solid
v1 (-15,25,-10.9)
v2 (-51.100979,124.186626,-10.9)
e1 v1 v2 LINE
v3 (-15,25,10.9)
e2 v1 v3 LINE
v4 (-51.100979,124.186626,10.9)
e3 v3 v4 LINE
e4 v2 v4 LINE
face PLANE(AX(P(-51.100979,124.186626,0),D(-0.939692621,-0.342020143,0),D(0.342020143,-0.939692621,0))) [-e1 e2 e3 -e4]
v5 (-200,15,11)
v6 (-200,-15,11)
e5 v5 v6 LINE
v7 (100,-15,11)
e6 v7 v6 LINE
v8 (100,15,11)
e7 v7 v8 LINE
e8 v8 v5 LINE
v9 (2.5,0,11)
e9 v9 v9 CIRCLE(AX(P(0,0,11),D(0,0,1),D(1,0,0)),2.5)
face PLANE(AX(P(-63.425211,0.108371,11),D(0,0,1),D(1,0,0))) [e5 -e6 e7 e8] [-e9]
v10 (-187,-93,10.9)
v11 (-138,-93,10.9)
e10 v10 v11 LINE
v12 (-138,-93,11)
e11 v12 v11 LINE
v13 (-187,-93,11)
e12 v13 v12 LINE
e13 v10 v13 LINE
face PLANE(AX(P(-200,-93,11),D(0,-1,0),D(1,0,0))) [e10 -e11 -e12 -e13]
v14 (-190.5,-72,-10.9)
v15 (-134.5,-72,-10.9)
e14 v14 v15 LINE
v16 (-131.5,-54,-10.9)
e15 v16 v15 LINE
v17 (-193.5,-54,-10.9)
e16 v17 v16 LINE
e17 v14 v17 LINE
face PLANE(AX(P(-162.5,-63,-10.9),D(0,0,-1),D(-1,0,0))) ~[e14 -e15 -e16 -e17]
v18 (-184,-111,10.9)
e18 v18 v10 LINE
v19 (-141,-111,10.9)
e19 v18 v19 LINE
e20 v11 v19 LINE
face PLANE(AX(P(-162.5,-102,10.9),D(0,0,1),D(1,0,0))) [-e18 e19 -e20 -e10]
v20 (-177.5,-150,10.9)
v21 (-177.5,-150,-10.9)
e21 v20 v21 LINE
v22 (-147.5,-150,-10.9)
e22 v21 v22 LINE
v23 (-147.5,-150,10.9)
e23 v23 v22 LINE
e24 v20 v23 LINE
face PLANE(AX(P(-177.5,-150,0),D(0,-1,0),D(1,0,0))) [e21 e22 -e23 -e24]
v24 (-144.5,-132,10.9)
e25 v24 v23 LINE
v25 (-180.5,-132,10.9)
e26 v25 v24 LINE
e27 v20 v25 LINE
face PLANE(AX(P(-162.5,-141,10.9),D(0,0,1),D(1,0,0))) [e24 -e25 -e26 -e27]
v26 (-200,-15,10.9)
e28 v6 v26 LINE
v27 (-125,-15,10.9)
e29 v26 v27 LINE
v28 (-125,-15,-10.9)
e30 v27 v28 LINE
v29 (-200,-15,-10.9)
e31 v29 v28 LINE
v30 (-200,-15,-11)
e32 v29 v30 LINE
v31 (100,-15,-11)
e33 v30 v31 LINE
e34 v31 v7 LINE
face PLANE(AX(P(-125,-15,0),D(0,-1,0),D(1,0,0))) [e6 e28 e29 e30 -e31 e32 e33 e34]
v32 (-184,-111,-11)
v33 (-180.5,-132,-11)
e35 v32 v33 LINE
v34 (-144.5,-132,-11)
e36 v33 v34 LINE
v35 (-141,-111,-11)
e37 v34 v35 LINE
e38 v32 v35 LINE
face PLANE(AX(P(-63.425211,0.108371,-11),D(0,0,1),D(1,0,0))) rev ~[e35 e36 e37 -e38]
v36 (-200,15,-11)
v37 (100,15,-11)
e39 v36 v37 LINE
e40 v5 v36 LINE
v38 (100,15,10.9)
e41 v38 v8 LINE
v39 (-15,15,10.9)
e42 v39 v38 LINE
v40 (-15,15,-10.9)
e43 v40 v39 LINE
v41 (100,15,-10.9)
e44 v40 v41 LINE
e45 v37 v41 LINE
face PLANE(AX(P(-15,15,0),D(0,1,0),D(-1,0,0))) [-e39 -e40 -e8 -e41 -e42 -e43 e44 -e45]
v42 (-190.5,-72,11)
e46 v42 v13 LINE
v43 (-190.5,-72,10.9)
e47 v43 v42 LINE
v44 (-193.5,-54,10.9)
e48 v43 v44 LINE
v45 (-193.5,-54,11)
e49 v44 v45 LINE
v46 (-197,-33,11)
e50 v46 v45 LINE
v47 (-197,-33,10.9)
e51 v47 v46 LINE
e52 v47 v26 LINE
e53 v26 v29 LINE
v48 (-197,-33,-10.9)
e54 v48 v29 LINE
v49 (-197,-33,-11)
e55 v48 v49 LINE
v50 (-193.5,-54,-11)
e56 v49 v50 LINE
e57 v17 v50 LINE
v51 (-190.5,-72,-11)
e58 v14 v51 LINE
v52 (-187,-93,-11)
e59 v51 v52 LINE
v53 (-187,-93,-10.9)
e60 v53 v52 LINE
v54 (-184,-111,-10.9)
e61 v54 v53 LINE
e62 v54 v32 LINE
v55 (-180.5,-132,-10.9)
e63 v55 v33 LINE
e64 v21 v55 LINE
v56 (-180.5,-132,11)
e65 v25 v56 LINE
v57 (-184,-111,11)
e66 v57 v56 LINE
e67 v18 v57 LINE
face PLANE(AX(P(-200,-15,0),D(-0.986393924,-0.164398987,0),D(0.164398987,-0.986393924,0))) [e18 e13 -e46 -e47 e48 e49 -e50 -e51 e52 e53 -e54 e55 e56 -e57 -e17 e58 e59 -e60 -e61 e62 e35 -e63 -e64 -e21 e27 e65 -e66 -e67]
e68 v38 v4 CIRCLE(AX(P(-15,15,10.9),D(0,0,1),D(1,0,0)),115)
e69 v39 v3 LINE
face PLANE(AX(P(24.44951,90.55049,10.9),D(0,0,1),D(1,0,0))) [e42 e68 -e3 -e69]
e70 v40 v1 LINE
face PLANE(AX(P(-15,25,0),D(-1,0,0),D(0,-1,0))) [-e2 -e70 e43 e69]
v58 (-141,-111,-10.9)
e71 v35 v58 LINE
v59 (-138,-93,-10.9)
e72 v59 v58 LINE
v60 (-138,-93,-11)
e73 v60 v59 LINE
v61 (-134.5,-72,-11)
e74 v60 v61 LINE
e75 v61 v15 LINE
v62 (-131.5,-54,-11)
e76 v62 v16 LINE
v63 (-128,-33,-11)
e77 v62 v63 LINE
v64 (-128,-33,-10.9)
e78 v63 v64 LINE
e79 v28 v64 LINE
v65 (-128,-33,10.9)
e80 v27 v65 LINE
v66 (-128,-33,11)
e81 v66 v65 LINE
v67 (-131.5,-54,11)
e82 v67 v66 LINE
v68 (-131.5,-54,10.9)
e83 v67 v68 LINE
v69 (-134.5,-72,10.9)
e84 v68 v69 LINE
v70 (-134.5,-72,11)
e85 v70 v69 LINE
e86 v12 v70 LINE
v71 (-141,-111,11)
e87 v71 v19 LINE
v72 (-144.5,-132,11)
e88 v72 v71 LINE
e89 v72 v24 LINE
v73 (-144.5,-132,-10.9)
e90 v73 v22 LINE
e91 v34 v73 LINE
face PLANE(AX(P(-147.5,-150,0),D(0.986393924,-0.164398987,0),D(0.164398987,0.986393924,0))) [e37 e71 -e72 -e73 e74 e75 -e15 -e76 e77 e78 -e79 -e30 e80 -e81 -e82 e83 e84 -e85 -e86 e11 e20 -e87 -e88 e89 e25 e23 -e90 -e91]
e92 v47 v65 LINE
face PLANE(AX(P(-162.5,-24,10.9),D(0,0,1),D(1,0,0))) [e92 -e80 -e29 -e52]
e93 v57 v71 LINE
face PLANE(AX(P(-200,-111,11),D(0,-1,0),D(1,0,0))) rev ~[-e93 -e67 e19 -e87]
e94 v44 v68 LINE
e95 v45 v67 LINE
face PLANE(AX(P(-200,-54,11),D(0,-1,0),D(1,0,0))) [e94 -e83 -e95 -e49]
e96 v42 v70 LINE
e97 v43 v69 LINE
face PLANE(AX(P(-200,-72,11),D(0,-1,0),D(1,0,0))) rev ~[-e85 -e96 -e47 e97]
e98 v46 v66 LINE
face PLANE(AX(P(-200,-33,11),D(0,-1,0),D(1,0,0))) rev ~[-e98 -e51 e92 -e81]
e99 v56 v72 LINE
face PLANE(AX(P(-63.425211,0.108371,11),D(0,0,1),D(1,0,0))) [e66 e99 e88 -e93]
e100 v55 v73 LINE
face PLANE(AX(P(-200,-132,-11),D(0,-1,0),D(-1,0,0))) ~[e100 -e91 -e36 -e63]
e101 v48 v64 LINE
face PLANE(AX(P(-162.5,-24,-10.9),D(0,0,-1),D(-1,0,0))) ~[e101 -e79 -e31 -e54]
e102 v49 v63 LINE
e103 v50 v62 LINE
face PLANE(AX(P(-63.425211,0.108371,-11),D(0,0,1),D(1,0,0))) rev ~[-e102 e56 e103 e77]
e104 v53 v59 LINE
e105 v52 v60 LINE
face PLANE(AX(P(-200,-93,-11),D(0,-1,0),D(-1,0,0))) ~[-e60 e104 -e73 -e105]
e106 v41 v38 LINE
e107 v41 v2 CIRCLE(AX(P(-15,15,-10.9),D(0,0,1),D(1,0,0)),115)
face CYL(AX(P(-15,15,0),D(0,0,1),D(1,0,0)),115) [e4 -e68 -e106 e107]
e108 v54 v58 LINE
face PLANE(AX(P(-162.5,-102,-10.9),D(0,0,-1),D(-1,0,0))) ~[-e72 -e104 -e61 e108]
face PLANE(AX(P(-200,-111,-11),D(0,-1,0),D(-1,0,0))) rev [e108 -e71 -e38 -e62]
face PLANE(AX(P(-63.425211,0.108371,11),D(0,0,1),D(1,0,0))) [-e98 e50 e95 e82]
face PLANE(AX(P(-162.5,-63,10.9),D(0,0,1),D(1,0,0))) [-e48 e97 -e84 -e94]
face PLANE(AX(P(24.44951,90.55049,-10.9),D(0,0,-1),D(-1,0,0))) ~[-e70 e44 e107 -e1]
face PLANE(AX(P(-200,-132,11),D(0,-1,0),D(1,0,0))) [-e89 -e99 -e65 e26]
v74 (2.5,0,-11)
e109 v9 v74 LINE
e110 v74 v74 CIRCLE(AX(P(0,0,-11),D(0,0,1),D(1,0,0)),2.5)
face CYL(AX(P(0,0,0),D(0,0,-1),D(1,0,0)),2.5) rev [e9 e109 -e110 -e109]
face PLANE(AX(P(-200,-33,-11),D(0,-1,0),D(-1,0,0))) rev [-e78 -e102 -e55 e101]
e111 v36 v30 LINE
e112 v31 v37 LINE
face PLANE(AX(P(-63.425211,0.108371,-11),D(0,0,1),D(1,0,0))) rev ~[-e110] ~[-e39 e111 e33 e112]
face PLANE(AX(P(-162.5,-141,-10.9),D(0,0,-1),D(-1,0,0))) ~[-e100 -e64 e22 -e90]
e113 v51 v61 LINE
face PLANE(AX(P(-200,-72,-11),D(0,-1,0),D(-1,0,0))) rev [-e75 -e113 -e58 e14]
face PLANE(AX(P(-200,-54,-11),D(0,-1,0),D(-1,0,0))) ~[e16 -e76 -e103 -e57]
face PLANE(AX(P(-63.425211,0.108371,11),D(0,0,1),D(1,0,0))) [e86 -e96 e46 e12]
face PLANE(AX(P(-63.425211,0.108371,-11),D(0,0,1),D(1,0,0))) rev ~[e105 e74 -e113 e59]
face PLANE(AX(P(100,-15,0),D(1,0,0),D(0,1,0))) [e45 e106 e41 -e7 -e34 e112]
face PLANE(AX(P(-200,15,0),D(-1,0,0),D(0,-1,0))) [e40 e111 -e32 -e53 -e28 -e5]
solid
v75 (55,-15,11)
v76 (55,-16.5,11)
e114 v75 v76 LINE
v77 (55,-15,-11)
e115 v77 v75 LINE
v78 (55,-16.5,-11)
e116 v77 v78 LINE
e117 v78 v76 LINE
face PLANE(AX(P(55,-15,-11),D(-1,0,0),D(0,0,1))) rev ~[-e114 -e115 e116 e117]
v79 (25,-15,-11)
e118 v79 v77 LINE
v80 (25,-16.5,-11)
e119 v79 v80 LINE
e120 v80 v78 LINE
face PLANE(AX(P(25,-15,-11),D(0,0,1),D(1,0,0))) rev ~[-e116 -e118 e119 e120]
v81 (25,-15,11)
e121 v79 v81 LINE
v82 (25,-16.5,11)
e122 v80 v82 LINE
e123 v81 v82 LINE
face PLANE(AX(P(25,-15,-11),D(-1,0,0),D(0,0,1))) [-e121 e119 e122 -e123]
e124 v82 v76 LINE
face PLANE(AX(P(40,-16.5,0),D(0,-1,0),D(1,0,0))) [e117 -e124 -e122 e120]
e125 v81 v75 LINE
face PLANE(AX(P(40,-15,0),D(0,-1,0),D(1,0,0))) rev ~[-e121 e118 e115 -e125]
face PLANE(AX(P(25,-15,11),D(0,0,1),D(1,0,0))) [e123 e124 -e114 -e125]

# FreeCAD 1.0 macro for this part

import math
import FreeCAD as App
import Part
import Sketcher
Q = App.Units.Quantity

doc = App.newDocument("Part")
params = doc.addObject("Spreadsheet::Sheet", "Params")
for row, (alias, value) in enumerate([
    ("sketch1_diameter", "5 mm"),
    ("sketch1_radius", "115 mm"),
    ("sketch1_width", "225 mm"),
    ("sketch1_width2", "185 mm"),
    ("sketch1_width3", "30 mm"),
    ("pad1_length", "22 mm"),
    ("sketch2_width", "75 mm"),
    ("sketch2_height", "18 mm"),
    ("pocket1_length", "0.1 mm"),
    ("sketch3_width", "30 mm"),
    ("sketch3_height", "22 mm"),
    ("pad2_length", "1.5 mm"),
], start=1):
    params.set(f"A{row}", alias)
    params.set(f"B{row}", "=" + value)
    params.setAlias(f"B{row}", alias)

body = doc.addObject("PartDesign::Body", "Body")

# Sketch on XY plane
sketch1 = body.newObject("Sketcher::SketchObject", "Sketch")
sketch1.AttachmentSupport = (doc.getObject("XY_Plane"), [""])
sketch1.MapMode = "FlatFace"
sketch1.addGeometry([
    Part.LineSegment(App.Vector(-125, -15, 0), App.Vector(100, -15, 0)),  # 0
    Part.LineSegment(App.Vector(100, -15, 0), App.Vector(100, 15, 0)),  # 1
    Part.ArcOfCircle(Part.Circle(App.Vector(-15, 15, 0), App.Vector(0, 0, 1), 115), math.radians(0), math.radians(108)),  # 2
    Part.LineSegment(App.Vector(-51.1, 124.2, 0), App.Vector(-15, 25, 0)),  # 3
    Part.LineSegment(App.Vector(-15, 25, 0), App.Vector(-15, 15, 0)),  # 4
    Part.LineSegment(App.Vector(-15, 15, 0), App.Vector(-200, 15, 0)),  # 5
    Part.LineSegment(App.Vector(-200, 15, 0), App.Vector(-200, -15, 0)),  # 6
    Part.LineSegment(App.Vector(-200, -15, 0), App.Vector(-177.5, -150, 0)),  # 7
    Part.LineSegment(App.Vector(-177.5, -150, 0), App.Vector(-147.5, -150, 0)),  # 8
    Part.LineSegment(App.Vector(-147.5, -150, 0), App.Vector(-125, -15, 0)),  # 9
    Part.Circle(App.Vector(0, 0, 0), App.Vector(0, 0, 1), 2.5),  # 10
], False)
sketch1.addConstraint([
    Sketcher.Constraint("Coincident", 0, 2, 1, 1),
    Sketcher.Constraint("Tangent", 1, 2, 2, 1),
    Sketcher.Constraint("Coincident", 2, 2, 3, 1),
    Sketcher.Constraint("Coincident", 3, 2, 4, 1),
    Sketcher.Constraint("Coincident", 4, 2, 5, 1),
    Sketcher.Constraint("Coincident", 5, 2, 6, 1),
    Sketcher.Constraint("Coincident", 6, 2, 7, 1),
    Sketcher.Constraint("Coincident", 7, 2, 8, 1),
    Sketcher.Constraint("Coincident", 8, 2, 9, 1),
    Sketcher.Constraint("Coincident", 9, 2, 0, 1),
    Sketcher.Constraint("Horizontal", 0),
    Sketcher.Constraint("Vertical", 1),
    Sketcher.Constraint("Vertical", 4),
    Sketcher.Constraint("Horizontal", 5),
    Sketcher.Constraint("Vertical", 6),
    Sketcher.Constraint("Horizontal", 8),
    Sketcher.Constraint("Coincident", 10, 3, -1, 1),
    Sketcher.Constraint("Coincident", 4, 2, 2, 3),
    Sketcher.Constraint("Horizontal", 0, 2, 6, 2),
    Sketcher.Constraint("Equal", 8, 1),
    Sketcher.Constraint("Equal", 7, 9),
    Sketcher.Constraint("Diameter", 10, Q("5 mm")),
    Sketcher.Constraint("Radius", 2, Q("115 mm")),
    Sketcher.Constraint("DistanceX", 0, 1, 0, 2, Q("225 mm")),
    Sketcher.Constraint("DistanceX", 5, 2, 5, 1, Q("185 mm")),
    Sketcher.Constraint("DistanceX", 8, 1, 8, 2, Q("30 mm")),
    Sketcher.Constraint("DistanceY", 4, 2, 4, 1, Q("10 mm")),
    Sketcher.Constraint("Angle", 3, Q("-70 deg")),
    Sketcher.Constraint("DistanceX", 2, 3, -1, 1, Q("15 mm")),
    Sketcher.Constraint("DistanceY", -1, 1, 2, 3, Q("15 mm")),
    Sketcher.Constraint("DistanceY", 7, 2, -1, 1, Q("150 mm")),
])
sketch1.setExpression("Constraints[21]", "Params.sketch1_diameter")
sketch1.setExpression("Constraints[22]", "Params.sketch1_radius")
sketch1.setExpression("Constraints[23]", "Params.sketch1_width")
sketch1.setExpression("Constraints[24]", "Params.sketch1_width2")
sketch1.setExpression("Constraints[25]", "Params.sketch1_width3")
pad1 = body.newObject("PartDesign::Pad", "Pad")
pad1.Profile = sketch1
pad1.setExpression("Length", "Params.pad1_length")
pad1.Midplane = True

# Sketch on XY plane
sketch2 = body.newObject("Sketcher::SketchObject", "Sketch001")
sketch2.AttachmentSupport = (doc.getObject("XY_Plane"), [""])
sketch2.MapMode = "FlatFace"
sketch2.AttachmentOffset = App.Placement(App.Vector(0, 0, 11), App.Rotation())
sketch2.addGeometry([
    Part.LineSegment(App.Vector(-51, 166, 0), App.Vector(-51, 15, 0)),  # 0
    Part.LineSegment(App.Vector(-51, 15, 0), App.Vector(100, 15, 0)),  # 1
    Part.LineSegment(App.Vector(100, 15, 0), App.Vector(100, 166, 0)),  # 2
    Part.LineSegment(App.Vector(100, 166, 0), App.Vector(-51, 166, 0)),  # 3
    Part.LineSegment(App.Vector(-200, -15, 0), App.Vector(-200, -33, 0)),  # 4
    Part.LineSegment(App.Vector(-200, -33, 0), App.Vector(-125, -33, 0)),  # 5
    Part.LineSegment(App.Vector(-125, -33, 0), App.Vector(-125, -15, 0)),  # 6
    Part.LineSegment(App.Vector(-125, -15, 0), App.Vector(-200, -15, 0)),  # 7
    Part.LineSegment(App.Vector(-200, -54, 0), App.Vector(-200, -72, 0)),  # 8
    Part.LineSegment(App.Vector(-200, -72, 0), App.Vector(-125, -72, 0)),  # 9
    Part.LineSegment(App.Vector(-125, -72, 0), App.Vector(-125, -54, 0)),  # 10
    Part.LineSegment(App.Vector(-125, -54, 0), App.Vector(-200, -54, 0)),  # 11
    Part.LineSegment(App.Vector(-200, -93, 0), App.Vector(-200, -111, 0)),  # 12
    Part.LineSegment(App.Vector(-200, -111, 0), App.Vector(-125, -111, 0)),  # 13
    Part.LineSegment(App.Vector(-125, -111, 0), App.Vector(-125, -93, 0)),  # 14
    Part.LineSegment(App.Vector(-125, -93, 0), App.Vector(-200, -93, 0)),  # 15
    Part.LineSegment(App.Vector(-200, -132, 0), App.Vector(-200, -150, 0)),  # 16
    Part.LineSegment(App.Vector(-200, -150, 0), App.Vector(-125, -150, 0)),  # 17
    Part.LineSegment(App.Vector(-125, -150, 0), App.Vector(-125, -132, 0)),  # 18
    Part.LineSegment(App.Vector(-125, -132, 0), App.Vector(-200, -132, 0)),  # 19
], False)
sketch2.addConstraint([
    Sketcher.Constraint("Coincident", 0, 2, 1, 1),
    Sketcher.Constraint("Coincident", 1, 2, 2, 1),
    Sketcher.Constraint("Coincident", 2, 2, 3, 1),
    Sketcher.Constraint("Coincident", 3, 2, 0, 1),
    Sketcher.Constraint("Coincident", 4, 2, 5, 1),
    Sketcher.Constraint("Coincident", 5, 2, 6, 1),
    Sketcher.Constraint("Coincident", 6, 2, 7, 1),
    Sketcher.Constraint("Coincident", 7, 2, 4, 1),
    Sketcher.Constraint("Coincident", 8, 2, 9, 1),
    Sketcher.Constraint("Coincident", 9, 2, 10, 1),
    Sketcher.Constraint("Coincident", 10, 2, 11, 1),
    Sketcher.Constraint("Coincident", 11, 2, 8, 1),
    Sketcher.Constraint("Coincident", 12, 2, 13, 1),
    Sketcher.Constraint("Coincident", 13, 2, 14, 1),
    Sketcher.Constraint("Coincident", 14, 2, 15, 1),
    Sketcher.Constraint("Coincident", 15, 2, 12, 1),
    Sketcher.Constraint("Coincident", 16, 2, 17, 1),
    Sketcher.Constraint("Coincident", 17, 2, 18, 1),
    Sketcher.Constraint("Coincident", 18, 2, 19, 1),
    Sketcher.Constraint("Coincident", 19, 2, 16, 1),
    Sketcher.Constraint("Vertical", 0),
    Sketcher.Constraint("Horizontal", 1),
    Sketcher.Constraint("Vertical", 2),
    Sketcher.Constraint("Horizontal", 3),
    Sketcher.Constraint("Vertical", 4),
    Sketcher.Constraint("Horizontal", 5),
    Sketcher.Constraint("Vertical", 6),
    Sketcher.Constraint("Horizontal", 7),
    Sketcher.Constraint("Vertical", 8),
    Sketcher.Constraint("Horizontal", 9),
    Sketcher.Constraint("Vertical", 10),
    Sketcher.Constraint("Horizontal", 11),
    Sketcher.Constraint("Vertical", 12),
    Sketcher.Constraint("Horizontal", 13),
    Sketcher.Constraint("Vertical", 14),
    Sketcher.Constraint("Horizontal", 15),
    Sketcher.Constraint("Vertical", 16),
    Sketcher.Constraint("Horizontal", 17),
    Sketcher.Constraint("Vertical", 18),
    Sketcher.Constraint("Horizontal", 19),
    Sketcher.Constraint("Vertical", 7, 2, 8, 2),
    Sketcher.Constraint("Vertical", 6, 2, 9, 2),
    Sketcher.Constraint("Vertical", 11, 2, 12, 2),
    Sketcher.Constraint("Vertical", 10, 2, 13, 2),
    Sketcher.Constraint("Vertical", 15, 2, 16, 2),
    Sketcher.Constraint("Vertical", 14, 2, 17, 2),
    Sketcher.Constraint("Equal", 3, 0),
    Sketcher.Constraint("Equal", 6, 8),
    Sketcher.Constraint("Equal", 10, 12),
    Sketcher.Constraint("Equal", 14, 16),
    Sketcher.Constraint("DistanceX", 5, 1, 5, 2, Q("75 mm")),
    Sketcher.Constraint("DistanceY", 4, 2, 4, 1, Q("18 mm")),
    Sketcher.Constraint("DistanceY", -1, 1, 0, 2, Q("15 mm")),
    Sketcher.Constraint("DistanceX", -1, 1, 1, 2, Q("100 mm")),
    Sketcher.Constraint("DistanceX", 4, 2, -1, 1, Q("200 mm")),
    Sketcher.Constraint("DistanceY", 4, 2, -1, 1, Q("33 mm")),
    Sketcher.Constraint("DistanceY", 8, 2, -1, 1, Q("72 mm")),
    Sketcher.Constraint("DistanceY", 12, 2, -1, 1, Q("111 mm")),
    Sketcher.Constraint("DistanceY", 16, 2, -1, 1, Q("150 mm")),
    Sketcher.Constraint("DistanceX", 1, 1, 1, 2, Q("151.100979 mm")),
])
sketch2.setExpression("Constraints[50]", "Params.sketch2_width")
sketch2.setExpression("Constraints[51]", "Params.sketch2_height")
pocket1 = body.newObject("PartDesign::Pocket", "Pocket")
pocket1.Profile = sketch2
pocket1.setExpression("Length", "Params.pocket1_length")
doc.recompute()

mirrored = body.newObject("PartDesign::Mirrored", "Mirrored")
mirrored.Originals = [pocket1]
mirrored.MirrorPlane = (doc.getObject("XY_Plane"), [""])
body.Tip = mirrored
body2 = doc.addObject("PartDesign::Body", "Body001")

# Sketch on XZ plane
sketch3 = body2.newObject("Sketcher::SketchObject", "Sketch002")
sketch3.AttachmentSupport = (doc.getObject("XZ_Plane001"), [""])
sketch3.MapMode = "FlatFace"
sketch3.AttachmentOffset = App.Placement(App.Vector(0, 0, 15), App.Rotation())
sketch3.addGeometry([
    Part.LineSegment(App.Vector(25, 11, 0), App.Vector(25, -11, 0)),
    Part.LineSegment(App.Vector(25, -11, 0), App.Vector(55, -11, 0)),
    Part.LineSegment(App.Vector(55, -11, 0), App.Vector(55, 11, 0)),
    Part.LineSegment(App.Vector(55, 11, 0), App.Vector(25, 11, 0)),
], False)
sketch3.addConstraint([
    Sketcher.Constraint("Coincident", 0, 2, 1, 1),
    Sketcher.Constraint("Coincident", 1, 2, 2, 1),
    Sketcher.Constraint("Coincident", 2, 2, 3, 1),
    Sketcher.Constraint("Coincident", 3, 2, 0, 1),
    Sketcher.Constraint("Vertical", 0),
    Sketcher.Constraint("Horizontal", 1),
    Sketcher.Constraint("Vertical", 2),
    Sketcher.Constraint("Horizontal", 3),
    Sketcher.Constraint("DistanceX", 1, 1, 1, 2, Q("30 mm")),
    Sketcher.Constraint("DistanceY", 0, 2, 0, 1, Q("22 mm")),
    Sketcher.Constraint("DistanceX", -1, 1, 0, 2, Q("25 mm")),
    Sketcher.Constraint("DistanceY", 0, 2, -1, 1, Q("11 mm")),
])
sketch3.setExpression("Constraints[8]", "Params.sketch3_width")
sketch3.setExpression("Constraints[9]", "Params.sketch3_height")
pad2 = body2.newObject("PartDesign::Pad", "Pad001")
pad2.Profile = sketch3
pad2.setExpression("Length", "Params.pad2_length")

doc.recompute()
